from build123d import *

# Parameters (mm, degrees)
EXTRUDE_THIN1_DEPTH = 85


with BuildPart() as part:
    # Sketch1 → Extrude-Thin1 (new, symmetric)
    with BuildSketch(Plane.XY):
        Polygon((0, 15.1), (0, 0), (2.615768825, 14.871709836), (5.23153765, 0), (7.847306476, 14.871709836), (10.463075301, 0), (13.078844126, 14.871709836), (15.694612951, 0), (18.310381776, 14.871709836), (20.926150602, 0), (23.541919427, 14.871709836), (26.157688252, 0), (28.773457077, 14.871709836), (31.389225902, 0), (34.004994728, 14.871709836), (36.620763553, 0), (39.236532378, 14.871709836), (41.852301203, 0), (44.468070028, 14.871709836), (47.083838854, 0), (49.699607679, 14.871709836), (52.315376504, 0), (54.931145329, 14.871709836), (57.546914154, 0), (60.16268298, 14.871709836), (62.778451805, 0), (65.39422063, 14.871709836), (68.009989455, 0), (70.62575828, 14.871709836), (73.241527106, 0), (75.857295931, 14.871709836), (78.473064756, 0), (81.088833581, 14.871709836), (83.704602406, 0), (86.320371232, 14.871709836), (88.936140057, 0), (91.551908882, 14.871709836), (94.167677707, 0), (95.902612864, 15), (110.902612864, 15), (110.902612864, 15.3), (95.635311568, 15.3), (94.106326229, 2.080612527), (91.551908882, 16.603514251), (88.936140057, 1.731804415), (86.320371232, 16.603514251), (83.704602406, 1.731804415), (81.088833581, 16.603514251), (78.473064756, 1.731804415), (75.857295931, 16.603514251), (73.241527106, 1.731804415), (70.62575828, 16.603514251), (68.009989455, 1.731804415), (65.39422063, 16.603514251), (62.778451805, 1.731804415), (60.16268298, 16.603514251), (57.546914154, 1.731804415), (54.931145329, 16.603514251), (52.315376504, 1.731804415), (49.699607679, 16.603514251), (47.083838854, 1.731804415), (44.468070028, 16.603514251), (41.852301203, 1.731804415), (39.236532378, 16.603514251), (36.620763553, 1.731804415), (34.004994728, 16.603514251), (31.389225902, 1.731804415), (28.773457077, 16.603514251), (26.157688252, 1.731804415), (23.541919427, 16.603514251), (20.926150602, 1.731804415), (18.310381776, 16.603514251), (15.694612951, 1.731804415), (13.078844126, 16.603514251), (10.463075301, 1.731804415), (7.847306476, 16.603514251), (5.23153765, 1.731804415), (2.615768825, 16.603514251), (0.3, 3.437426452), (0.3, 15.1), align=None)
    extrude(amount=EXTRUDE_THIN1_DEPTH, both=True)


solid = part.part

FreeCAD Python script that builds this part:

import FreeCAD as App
import Part
import Sketcher
from FreeCAD import Vector


def add_polygon(sketch, points):
    """Adds a closed chain of lines whose ends are joined by coincident constraints."""
    first, n = sketch.GeometryCount, len(points)
    for a, b in zip(points, points[1:] + points[:1]):
        sketch.addGeometry(Part.LineSegment(App.Vector(*a, 0), App.Vector(*b, 0)), False)
    for i in range(n):
        sketch.addConstraint(Sketcher.Constraint("Coincident", first + i, 2, first + (i + 1) % n, 1))

doc = App.newDocument("Part")
params = doc.addObject("Spreadsheet::Sheet", "Params")
for row, (alias, value) in enumerate([
    ("sketch1_width", "15 mm"),
    ("sketch1_width2", "0.3 mm"),
    ("sketch1_height", "15.1 mm"),
    ("sketch1_length", "15.1 mm"),
    ("pad1_length", "170 mm"),
], start=1):
    params.set(f"A{row}", alias)
    params.set(f"B{row}", "=" + value)
    params.setAlias(f"B{row}", alias)

body = doc.addObject("PartDesign::Body", "Body")

sketch1 = doc.addObject("Sketcher::SketchObject", "Sketch")
body.addObject(sketch1)
sketch1.AttachmentSupport = (doc.XY_Plane, [""])
sketch1.MapMode = "FlatFace"
add_polygon(sketch1, [(0, 15.1), (0, 0), (2.62, 14.87), (5.23, 0), (7.85, 14.87), (10.46, 0), (13.08, 14.87), (15.69, 0), (18.31, 14.87), (20.93, 0), (23.54, 14.87), (26.16, 0), (28.77, 14.87), (31.39, 0), (34, 14.87), (36.62, 0), (39.24, 14.87), (41.85, 0), (44.47, 14.87), (47.08, 0), (49.7, 14.87), (52.32, 0), (54.93, 14.87), (57.55, 0), (60.16, 14.87), (62.78, 0), (65.39, 14.87), (68.01, 0), (70.63, 14.87), (73.24, 0), (75.86, 14.87), (78.47, 0), (81.09, 14.87), (83.7, 0), (86.32, 14.87), (88.94, 0), (91.55, 14.87), (94.17, 0), (95.9, 15), (110.9, 15), (110.9, 15.3), (95.64, 15.3), (94.11, 2.08), (91.55, 16.6), (88.94, 1.73), (86.32, 16.6), (83.7, 1.73), (81.09, 16.6), (78.47, 1.73), (75.86, 16.6), (73.24, 1.73), (70.63, 16.6), (68.01, 1.73), (65.39, 16.6), (62.78, 1.73), (60.16, 16.6), (57.55, 1.73), (54.93, 16.6), (52.32, 1.73), (49.7, 16.6), (47.08, 1.73), (44.47, 16.6), (41.85, 1.73), (39.24, 16.6), (36.62, 1.73), (34, 16.6), (31.39, 1.73), (28.77, 16.6), (26.16, 1.73), (23.54, 16.6), (20.93, 1.73), (18.31, 16.6), (15.69, 1.73), (13.08, 16.6), (10.46, 1.73), (7.85, 16.6), (5.23, 1.73), (2.62, 16.6), (0.3, 3.44), (0.3, 15.1)])
sketch1.addConstraint(Sketcher.Constraint("Vertical", 0))
sketch1.addConstraint(Sketcher.Constraint("Horizontal", 38))
sketch1.addConstraint(Sketcher.Constraint("Vertical", 39))
sketch1.addConstraint(Sketcher.Constraint("Horizontal", 40))
sketch1.addConstraint(Sketcher.Constraint("Vertical", 78))
sketch1.addConstraint(Sketcher.Constraint("Horizontal", 79))
sketch1.addConstraint(Sketcher.Constraint("Coincident", 0, 2, -1, 1))
sketch1.addConstraint(Sketcher.Constraint("PointOnObject", 2, 2, -1))
sketch1.addConstraint(Sketcher.Constraint("PointOnObject", 4, 2, -1))
sketch1.addConstraint(Sketcher.Constraint("PointOnObject", 6, 2, -1))
sketch1.addConstraint(Sketcher.Constraint("PointOnObject", 8, 2, -1))
sketch1.addConstraint(Sketcher.Constraint("PointOnObject", 10, 2, -1))
sketch1.addConstraint(Sketcher.Constraint("PointOnObject", 12, 2, -1))
sketch1.addConstraint(Sketcher.Constraint("PointOnObject", 14, 2, -1))
sketch1.addConstraint(Sketcher.Constraint("PointOnObject", 16, 2, -1))
sketch1.addConstraint(Sketcher.Constraint("PointOnObject", 18, 2, -1))
sketch1.addConstraint(Sketcher.Constraint("PointOnObject", 20, 2, -1))
sketch1.addConstraint(Sketcher.Constraint("PointOnObject", 22, 2, -1))
sketch1.addConstraint(Sketcher.Constraint("PointOnObject", 24, 2, -1))
sketch1.addConstraint(Sketcher.Constraint("PointOnObject", 26, 2, -1))
sketch1.addConstraint(Sketcher.Constraint("PointOnObject", 28, 2, -1))
sketch1.addConstraint(Sketcher.Constraint("PointOnObject", 30, 2, -1))
sketch1.addConstraint(Sketcher.Constraint("PointOnObject", 32, 2, -1))
sketch1.addConstraint(Sketcher.Constraint("PointOnObject", 34, 2, -1))
sketch1.addConstraint(Sketcher.Constraint("PointOnObject", 36, 2, -1))
sketch1.addConstraint(Sketcher.Constraint("Parallel", 1, 3))
sketch1.addConstraint(Sketcher.Constraint("Parallel", 2, 4))
sketch1.addConstraint(Sketcher.Constraint("Parallel", 3, 5))
sketch1.addConstraint(Sketcher.Constraint("Parallel", 4, 6))
sketch1.addConstraint(Sketcher.Constraint("Parallel", 5, 7))
sketch1.addConstraint(Sketcher.Constraint("Parallel", 6, 8))
sketch1.addConstraint(Sketcher.Constraint("Parallel", 7, 9))
sketch1.addConstraint(Sketcher.Constraint("Parallel", 8, 10))
sketch1.addConstraint(Sketcher.Constraint("Parallel", 9, 11))
sketch1.addConstraint(Sketcher.Constraint("Parallel", 10, 12))
sketch1.addConstraint(Sketcher.Constraint("Parallel", 11, 13))
sketch1.addConstraint(Sketcher.Constraint("Parallel", 12, 14))
sketch1.addConstraint(Sketcher.Constraint("Parallel", 13, 15))
sketch1.addConstraint(Sketcher.Constraint("Parallel", 14, 16))
sketch1.addConstraint(Sketcher.Constraint("Parallel", 15, 17))
sketch1.addConstraint(Sketcher.Constraint("Parallel", 16, 18))
sketch1.addConstraint(Sketcher.Constraint("Parallel", 17, 19))
sketch1.addConstraint(Sketcher.Constraint("Parallel", 18, 20))
sketch1.addConstraint(Sketcher.Constraint("Parallel", 19, 21))
sketch1.addConstraint(Sketcher.Constraint("Parallel", 20, 22))
sketch1.addConstraint(Sketcher.Constraint("Parallel", 21, 23))
sketch1.addConstraint(Sketcher.Constraint("Parallel", 22, 24))
sketch1.addConstraint(Sketcher.Constraint("Parallel", 23, 25))
sketch1.addConstraint(Sketcher.Constraint("Parallel", 24, 26))
sketch1.addConstraint(Sketcher.Constraint("Parallel", 25, 27))
sketch1.addConstraint(Sketcher.Constraint("Parallel", 26, 28))
sketch1.addConstraint(Sketcher.Constraint("Parallel", 27, 29))
sketch1.addConstraint(Sketcher.Constraint("Parallel", 28, 30))
sketch1.addConstraint(Sketcher.Constraint("Parallel", 29, 31))
sketch1.addConstraint(Sketcher.Constraint("Parallel", 30, 32))
sketch1.addConstraint(Sketcher.Constraint("Parallel", 31, 33))
sketch1.addConstraint(Sketcher.Constraint("Parallel", 32, 34))
sketch1.addConstraint(Sketcher.Constraint("Parallel", 33, 35))
sketch1.addConstraint(Sketcher.Constraint("Parallel", 34, 36))
sketch1.addConstraint(Sketcher.Constraint("Parallel", 37, 41))
sketch1.addConstraint(Sketcher.Constraint("Parallel", 36, 42))
sketch1.addConstraint(Sketcher.Constraint("Parallel", 35, 43))
sketch1.addConstraint(Sketcher.Constraint("Parallel", 42, 44))
sketch1.addConstraint(Sketcher.Constraint("Parallel", 43, 45))
sketch1.addConstraint(Sketcher.Constraint("Parallel", 44, 46))
sketch1.addConstraint(Sketcher.Constraint("Parallel", 45, 47))
sketch1.addConstraint(Sketcher.Constraint("Parallel", 46, 48))
sketch1.addConstraint(Sketcher.Constraint("Parallel", 47, 49))
sketch1.addConstraint(Sketcher.Constraint("Parallel", 48, 50))
sketch1.addConstraint(Sketcher.Constraint("Parallel", 49, 51))
sketch1.addConstraint(Sketcher.Constraint("Parallel", 50, 52))
sketch1.addConstraint(Sketcher.Constraint("Parallel", 51, 53))
sketch1.addConstraint(Sketcher.Constraint("Parallel", 52, 54))
sketch1.addConstraint(Sketcher.Constraint("Parallel", 53, 55))
sketch1.addConstraint(Sketcher.Constraint("Parallel", 54, 56))
sketch1.addConstraint(Sketcher.Constraint("Parallel", 55, 57))
sketch1.addConstraint(Sketcher.Constraint("Parallel", 56, 58))
sketch1.addConstraint(Sketcher.Constraint("Parallel", 57, 59))
sketch1.addConstraint(Sketcher.Constraint("Parallel", 58, 60))
sketch1.addConstraint(Sketcher.Constraint("Parallel", 59, 61))
sketch1.addConstraint(Sketcher.Constraint("Parallel", 60, 62))
sketch1.addConstraint(Sketcher.Constraint("Parallel", 61, 63))
sketch1.addConstraint(Sketcher.Constraint("Parallel", 62, 64))
sketch1.addConstraint(Sketcher.Constraint("Parallel", 63, 65))
sketch1.addConstraint(Sketcher.Constraint("Parallel", 64, 66))
sketch1.addConstraint(Sketcher.Constraint("Parallel", 65, 67))
sketch1.addConstraint(Sketcher.Constraint("Parallel", 66, 68))
sketch1.addConstraint(Sketcher.Constraint("Parallel", 67, 69))
sketch1.addConstraint(Sketcher.Constraint("Parallel", 68, 70))
sketch1.addConstraint(Sketcher.Constraint("Parallel", 69, 71))
sketch1.addConstraint(Sketcher.Constraint("Parallel", 70, 72))
sketch1.addConstraint(Sketcher.Constraint("Parallel", 71, 73))
sketch1.addConstraint(Sketcher.Constraint("Parallel", 72, 74))
sketch1.addConstraint(Sketcher.Constraint("Parallel", 73, 75))
sketch1.addConstraint(Sketcher.Constraint("Parallel", 74, 76))
sketch1.addConstraint(Sketcher.Constraint("Parallel", 75, 77))
sketch1.addConstraint(Sketcher.Constraint("Horizontal", 1, 2, 3, 2))
sketch1.addConstraint(Sketcher.Constraint("Horizontal", 3, 2, 5, 2))
sketch1.addConstraint(Sketcher.Constraint("Horizontal", 5, 2, 7, 2))
sketch1.addConstraint(Sketcher.Constraint("Horizontal", 7, 2, 9, 2))
sketch1.addConstraint(Sketcher.Constraint("Horizontal", 9, 2, 11, 2))
sketch1.addConstraint(Sketcher.Constraint("Horizontal", 11, 2, 13, 2))
sketch1.addConstraint(Sketcher.Constraint("Horizontal", 13, 2, 15, 2))
sketch1.addConstraint(Sketcher.Constraint("Horizontal", 15, 2, 17, 2))
sketch1.addConstraint(Sketcher.Constraint("Horizontal", 17, 2, 19, 2))
sketch1.addConstraint(Sketcher.Constraint("Horizontal", 19, 2, 21, 2))
sketch1.addConstraint(Sketcher.Constraint("Horizontal", 21, 2, 23, 2))
sketch1.addConstraint(Sketcher.Constraint("Horizontal", 23, 2, 25, 2))
sketch1.addConstraint(Sketcher.Constraint("Horizontal", 25, 2, 27, 2))
sketch1.addConstraint(Sketcher.Constraint("Horizontal", 27, 2, 29, 2))
sketch1.addConstraint(Sketcher.Constraint("Horizontal", 29, 2, 31, 2))
sketch1.addConstraint(Sketcher.Constraint("Horizontal", 31, 2, 33, 2))
sketch1.addConstraint(Sketcher.Constraint("Horizontal", 33, 2, 35, 2))
sketch1.addConstraint(Sketcher.Constraint("Horizontal", 42, 2, 44, 2))
sketch1.addConstraint(Sketcher.Constraint("Horizontal", 43, 2, 45, 2))
sketch1.addConstraint(Sketcher.Constraint("Horizontal", 44, 2, 46, 2))
sketch1.addConstraint(Sketcher.Constraint("Horizontal", 45, 2, 47, 2))
sketch1.addConstraint(Sketcher.Constraint("Horizontal", 46, 2, 48, 2))
sketch1.addConstraint(Sketcher.Constraint("Horizontal", 47, 2, 49, 2))
sketch1.addConstraint(Sketcher.Constraint("Horizontal", 48, 2, 50, 2))
sketch1.addConstraint(Sketcher.Constraint("Horizontal", 49, 2, 51, 2))
sketch1.addConstraint(Sketcher.Constraint("Horizontal", 50, 2, 52, 2))
sketch1.addConstraint(Sketcher.Constraint("Horizontal", 51, 2, 53, 2))
sketch1.addConstraint(Sketcher.Constraint("Horizontal", 52, 2, 54, 2))
sketch1.addConstraint(Sketcher.Constraint("Horizontal", 53, 2, 55, 2))
sketch1.addConstraint(Sketcher.Constraint("Horizontal", 54, 2, 56, 2))
sketch1.addConstraint(Sketcher.Constraint("Horizontal", 55, 2, 57, 2))
sketch1.addConstraint(Sketcher.Constraint("Horizontal", 56, 2, 58, 2))
sketch1.addConstraint(Sketcher.Constraint("Horizontal", 57, 2, 59, 2))
sketch1.addConstraint(Sketcher.Constraint("Horizontal", 58, 2, 60, 2))
sketch1.addConstraint(Sketcher.Constraint("Horizontal", 59, 2, 61, 2))
sketch1.addConstraint(Sketcher.Constraint("Horizontal", 60, 2, 62, 2))
sketch1.addConstraint(Sketcher.Constraint("Horizontal", 61, 2, 63, 2))
sketch1.addConstraint(Sketcher.Constraint("Horizontal", 62, 2, 64, 2))
sketch1.addConstraint(Sketcher.Constraint("Horizontal", 63, 2, 65, 2))
sketch1.addConstraint(Sketcher.Constraint("Horizontal", 64, 2, 66, 2))
sketch1.addConstraint(Sketcher.Constraint("Horizontal", 65, 2, 67, 2))
sketch1.addConstraint(Sketcher.Constraint("Horizontal", 66, 2, 68, 2))
sketch1.addConstraint(Sketcher.Constraint("Horizontal", 67, 2, 69, 2))
sketch1.addConstraint(Sketcher.Constraint("Horizontal", 68, 2, 70, 2))
sketch1.addConstraint(Sketcher.Constraint("Horizontal", 69, 2, 71, 2))
sketch1.addConstraint(Sketcher.Constraint("Horizontal", 70, 2, 72, 2))
sketch1.addConstraint(Sketcher.Constraint("Horizontal", 71, 2, 73, 2))
sketch1.addConstraint(Sketcher.Constraint("Horizontal", 72, 2, 74, 2))
sketch1.addConstraint(Sketcher.Constraint("Horizontal", 73, 2, 75, 2))
sketch1.addConstraint(Sketcher.Constraint("Horizontal", 74, 2, 76, 2))
sketch1.addConstraint(Sketcher.Constraint("Vertical", 35, 2, 42, 2))
sketch1.addConstraint(Sketcher.Constraint("Vertical", 34, 2, 43, 2))
sketch1.addConstraint(Sketcher.Constraint("Equal", 79, 39))
sketch1.addConstraint(Sketcher.Constraint("Equal", 1, 2))
sketch1.addConstraint(Sketcher.Constraint("Equal", 36, 37))
sketch1.addConstraint(Sketcher.Constraint("DistanceX", 38, 1, 38, 2, 15.0))
sketch1.addConstraint(Sketcher.Constraint("DistanceX", 79, 2, 79, 1, 0.3))
sketch1.addConstraint(Sketcher.Constraint("DistanceY", 0, 2, 0, 1, 15.1))
sketch1.addConstraint(Sketcher.Constraint("DistanceY", -1, 1, 37, 2, 15.0))
sketch1.addConstraint(Sketcher.Constraint("Distance", 1, 15.1))
sketch1.addConstraint(Sketcher.Constraint("DistanceX", 40, 2, 40, 1, 15.267301))
sketch1.addConstraint(Sketcher.Constraint("DistanceX", -1, 1, 16, 2, 41.852301))
sketch1.addConstraint(Sketcher.Constraint("DistanceY", 78, 1, 78, 2, 11.662574))
sketch1.setExpression("Constraints[231]", "Params.sketch1_width")
sketch1.setExpression("Constraints[232]", "Params.sketch1_width2")
sketch1.setExpression("Constraints[233]", "Params.sketch1_height")
sketch1.setExpression("Constraints[235]", "Params.sketch1_length")
pad1 = doc.addObject("PartDesign::Pad", "Pad")
body.addObject(pad1)
pad1.Profile = sketch1
pad1.setExpression("Length", "Params.pad1_length")
pad1.Midplane = True

doc.recompute()
